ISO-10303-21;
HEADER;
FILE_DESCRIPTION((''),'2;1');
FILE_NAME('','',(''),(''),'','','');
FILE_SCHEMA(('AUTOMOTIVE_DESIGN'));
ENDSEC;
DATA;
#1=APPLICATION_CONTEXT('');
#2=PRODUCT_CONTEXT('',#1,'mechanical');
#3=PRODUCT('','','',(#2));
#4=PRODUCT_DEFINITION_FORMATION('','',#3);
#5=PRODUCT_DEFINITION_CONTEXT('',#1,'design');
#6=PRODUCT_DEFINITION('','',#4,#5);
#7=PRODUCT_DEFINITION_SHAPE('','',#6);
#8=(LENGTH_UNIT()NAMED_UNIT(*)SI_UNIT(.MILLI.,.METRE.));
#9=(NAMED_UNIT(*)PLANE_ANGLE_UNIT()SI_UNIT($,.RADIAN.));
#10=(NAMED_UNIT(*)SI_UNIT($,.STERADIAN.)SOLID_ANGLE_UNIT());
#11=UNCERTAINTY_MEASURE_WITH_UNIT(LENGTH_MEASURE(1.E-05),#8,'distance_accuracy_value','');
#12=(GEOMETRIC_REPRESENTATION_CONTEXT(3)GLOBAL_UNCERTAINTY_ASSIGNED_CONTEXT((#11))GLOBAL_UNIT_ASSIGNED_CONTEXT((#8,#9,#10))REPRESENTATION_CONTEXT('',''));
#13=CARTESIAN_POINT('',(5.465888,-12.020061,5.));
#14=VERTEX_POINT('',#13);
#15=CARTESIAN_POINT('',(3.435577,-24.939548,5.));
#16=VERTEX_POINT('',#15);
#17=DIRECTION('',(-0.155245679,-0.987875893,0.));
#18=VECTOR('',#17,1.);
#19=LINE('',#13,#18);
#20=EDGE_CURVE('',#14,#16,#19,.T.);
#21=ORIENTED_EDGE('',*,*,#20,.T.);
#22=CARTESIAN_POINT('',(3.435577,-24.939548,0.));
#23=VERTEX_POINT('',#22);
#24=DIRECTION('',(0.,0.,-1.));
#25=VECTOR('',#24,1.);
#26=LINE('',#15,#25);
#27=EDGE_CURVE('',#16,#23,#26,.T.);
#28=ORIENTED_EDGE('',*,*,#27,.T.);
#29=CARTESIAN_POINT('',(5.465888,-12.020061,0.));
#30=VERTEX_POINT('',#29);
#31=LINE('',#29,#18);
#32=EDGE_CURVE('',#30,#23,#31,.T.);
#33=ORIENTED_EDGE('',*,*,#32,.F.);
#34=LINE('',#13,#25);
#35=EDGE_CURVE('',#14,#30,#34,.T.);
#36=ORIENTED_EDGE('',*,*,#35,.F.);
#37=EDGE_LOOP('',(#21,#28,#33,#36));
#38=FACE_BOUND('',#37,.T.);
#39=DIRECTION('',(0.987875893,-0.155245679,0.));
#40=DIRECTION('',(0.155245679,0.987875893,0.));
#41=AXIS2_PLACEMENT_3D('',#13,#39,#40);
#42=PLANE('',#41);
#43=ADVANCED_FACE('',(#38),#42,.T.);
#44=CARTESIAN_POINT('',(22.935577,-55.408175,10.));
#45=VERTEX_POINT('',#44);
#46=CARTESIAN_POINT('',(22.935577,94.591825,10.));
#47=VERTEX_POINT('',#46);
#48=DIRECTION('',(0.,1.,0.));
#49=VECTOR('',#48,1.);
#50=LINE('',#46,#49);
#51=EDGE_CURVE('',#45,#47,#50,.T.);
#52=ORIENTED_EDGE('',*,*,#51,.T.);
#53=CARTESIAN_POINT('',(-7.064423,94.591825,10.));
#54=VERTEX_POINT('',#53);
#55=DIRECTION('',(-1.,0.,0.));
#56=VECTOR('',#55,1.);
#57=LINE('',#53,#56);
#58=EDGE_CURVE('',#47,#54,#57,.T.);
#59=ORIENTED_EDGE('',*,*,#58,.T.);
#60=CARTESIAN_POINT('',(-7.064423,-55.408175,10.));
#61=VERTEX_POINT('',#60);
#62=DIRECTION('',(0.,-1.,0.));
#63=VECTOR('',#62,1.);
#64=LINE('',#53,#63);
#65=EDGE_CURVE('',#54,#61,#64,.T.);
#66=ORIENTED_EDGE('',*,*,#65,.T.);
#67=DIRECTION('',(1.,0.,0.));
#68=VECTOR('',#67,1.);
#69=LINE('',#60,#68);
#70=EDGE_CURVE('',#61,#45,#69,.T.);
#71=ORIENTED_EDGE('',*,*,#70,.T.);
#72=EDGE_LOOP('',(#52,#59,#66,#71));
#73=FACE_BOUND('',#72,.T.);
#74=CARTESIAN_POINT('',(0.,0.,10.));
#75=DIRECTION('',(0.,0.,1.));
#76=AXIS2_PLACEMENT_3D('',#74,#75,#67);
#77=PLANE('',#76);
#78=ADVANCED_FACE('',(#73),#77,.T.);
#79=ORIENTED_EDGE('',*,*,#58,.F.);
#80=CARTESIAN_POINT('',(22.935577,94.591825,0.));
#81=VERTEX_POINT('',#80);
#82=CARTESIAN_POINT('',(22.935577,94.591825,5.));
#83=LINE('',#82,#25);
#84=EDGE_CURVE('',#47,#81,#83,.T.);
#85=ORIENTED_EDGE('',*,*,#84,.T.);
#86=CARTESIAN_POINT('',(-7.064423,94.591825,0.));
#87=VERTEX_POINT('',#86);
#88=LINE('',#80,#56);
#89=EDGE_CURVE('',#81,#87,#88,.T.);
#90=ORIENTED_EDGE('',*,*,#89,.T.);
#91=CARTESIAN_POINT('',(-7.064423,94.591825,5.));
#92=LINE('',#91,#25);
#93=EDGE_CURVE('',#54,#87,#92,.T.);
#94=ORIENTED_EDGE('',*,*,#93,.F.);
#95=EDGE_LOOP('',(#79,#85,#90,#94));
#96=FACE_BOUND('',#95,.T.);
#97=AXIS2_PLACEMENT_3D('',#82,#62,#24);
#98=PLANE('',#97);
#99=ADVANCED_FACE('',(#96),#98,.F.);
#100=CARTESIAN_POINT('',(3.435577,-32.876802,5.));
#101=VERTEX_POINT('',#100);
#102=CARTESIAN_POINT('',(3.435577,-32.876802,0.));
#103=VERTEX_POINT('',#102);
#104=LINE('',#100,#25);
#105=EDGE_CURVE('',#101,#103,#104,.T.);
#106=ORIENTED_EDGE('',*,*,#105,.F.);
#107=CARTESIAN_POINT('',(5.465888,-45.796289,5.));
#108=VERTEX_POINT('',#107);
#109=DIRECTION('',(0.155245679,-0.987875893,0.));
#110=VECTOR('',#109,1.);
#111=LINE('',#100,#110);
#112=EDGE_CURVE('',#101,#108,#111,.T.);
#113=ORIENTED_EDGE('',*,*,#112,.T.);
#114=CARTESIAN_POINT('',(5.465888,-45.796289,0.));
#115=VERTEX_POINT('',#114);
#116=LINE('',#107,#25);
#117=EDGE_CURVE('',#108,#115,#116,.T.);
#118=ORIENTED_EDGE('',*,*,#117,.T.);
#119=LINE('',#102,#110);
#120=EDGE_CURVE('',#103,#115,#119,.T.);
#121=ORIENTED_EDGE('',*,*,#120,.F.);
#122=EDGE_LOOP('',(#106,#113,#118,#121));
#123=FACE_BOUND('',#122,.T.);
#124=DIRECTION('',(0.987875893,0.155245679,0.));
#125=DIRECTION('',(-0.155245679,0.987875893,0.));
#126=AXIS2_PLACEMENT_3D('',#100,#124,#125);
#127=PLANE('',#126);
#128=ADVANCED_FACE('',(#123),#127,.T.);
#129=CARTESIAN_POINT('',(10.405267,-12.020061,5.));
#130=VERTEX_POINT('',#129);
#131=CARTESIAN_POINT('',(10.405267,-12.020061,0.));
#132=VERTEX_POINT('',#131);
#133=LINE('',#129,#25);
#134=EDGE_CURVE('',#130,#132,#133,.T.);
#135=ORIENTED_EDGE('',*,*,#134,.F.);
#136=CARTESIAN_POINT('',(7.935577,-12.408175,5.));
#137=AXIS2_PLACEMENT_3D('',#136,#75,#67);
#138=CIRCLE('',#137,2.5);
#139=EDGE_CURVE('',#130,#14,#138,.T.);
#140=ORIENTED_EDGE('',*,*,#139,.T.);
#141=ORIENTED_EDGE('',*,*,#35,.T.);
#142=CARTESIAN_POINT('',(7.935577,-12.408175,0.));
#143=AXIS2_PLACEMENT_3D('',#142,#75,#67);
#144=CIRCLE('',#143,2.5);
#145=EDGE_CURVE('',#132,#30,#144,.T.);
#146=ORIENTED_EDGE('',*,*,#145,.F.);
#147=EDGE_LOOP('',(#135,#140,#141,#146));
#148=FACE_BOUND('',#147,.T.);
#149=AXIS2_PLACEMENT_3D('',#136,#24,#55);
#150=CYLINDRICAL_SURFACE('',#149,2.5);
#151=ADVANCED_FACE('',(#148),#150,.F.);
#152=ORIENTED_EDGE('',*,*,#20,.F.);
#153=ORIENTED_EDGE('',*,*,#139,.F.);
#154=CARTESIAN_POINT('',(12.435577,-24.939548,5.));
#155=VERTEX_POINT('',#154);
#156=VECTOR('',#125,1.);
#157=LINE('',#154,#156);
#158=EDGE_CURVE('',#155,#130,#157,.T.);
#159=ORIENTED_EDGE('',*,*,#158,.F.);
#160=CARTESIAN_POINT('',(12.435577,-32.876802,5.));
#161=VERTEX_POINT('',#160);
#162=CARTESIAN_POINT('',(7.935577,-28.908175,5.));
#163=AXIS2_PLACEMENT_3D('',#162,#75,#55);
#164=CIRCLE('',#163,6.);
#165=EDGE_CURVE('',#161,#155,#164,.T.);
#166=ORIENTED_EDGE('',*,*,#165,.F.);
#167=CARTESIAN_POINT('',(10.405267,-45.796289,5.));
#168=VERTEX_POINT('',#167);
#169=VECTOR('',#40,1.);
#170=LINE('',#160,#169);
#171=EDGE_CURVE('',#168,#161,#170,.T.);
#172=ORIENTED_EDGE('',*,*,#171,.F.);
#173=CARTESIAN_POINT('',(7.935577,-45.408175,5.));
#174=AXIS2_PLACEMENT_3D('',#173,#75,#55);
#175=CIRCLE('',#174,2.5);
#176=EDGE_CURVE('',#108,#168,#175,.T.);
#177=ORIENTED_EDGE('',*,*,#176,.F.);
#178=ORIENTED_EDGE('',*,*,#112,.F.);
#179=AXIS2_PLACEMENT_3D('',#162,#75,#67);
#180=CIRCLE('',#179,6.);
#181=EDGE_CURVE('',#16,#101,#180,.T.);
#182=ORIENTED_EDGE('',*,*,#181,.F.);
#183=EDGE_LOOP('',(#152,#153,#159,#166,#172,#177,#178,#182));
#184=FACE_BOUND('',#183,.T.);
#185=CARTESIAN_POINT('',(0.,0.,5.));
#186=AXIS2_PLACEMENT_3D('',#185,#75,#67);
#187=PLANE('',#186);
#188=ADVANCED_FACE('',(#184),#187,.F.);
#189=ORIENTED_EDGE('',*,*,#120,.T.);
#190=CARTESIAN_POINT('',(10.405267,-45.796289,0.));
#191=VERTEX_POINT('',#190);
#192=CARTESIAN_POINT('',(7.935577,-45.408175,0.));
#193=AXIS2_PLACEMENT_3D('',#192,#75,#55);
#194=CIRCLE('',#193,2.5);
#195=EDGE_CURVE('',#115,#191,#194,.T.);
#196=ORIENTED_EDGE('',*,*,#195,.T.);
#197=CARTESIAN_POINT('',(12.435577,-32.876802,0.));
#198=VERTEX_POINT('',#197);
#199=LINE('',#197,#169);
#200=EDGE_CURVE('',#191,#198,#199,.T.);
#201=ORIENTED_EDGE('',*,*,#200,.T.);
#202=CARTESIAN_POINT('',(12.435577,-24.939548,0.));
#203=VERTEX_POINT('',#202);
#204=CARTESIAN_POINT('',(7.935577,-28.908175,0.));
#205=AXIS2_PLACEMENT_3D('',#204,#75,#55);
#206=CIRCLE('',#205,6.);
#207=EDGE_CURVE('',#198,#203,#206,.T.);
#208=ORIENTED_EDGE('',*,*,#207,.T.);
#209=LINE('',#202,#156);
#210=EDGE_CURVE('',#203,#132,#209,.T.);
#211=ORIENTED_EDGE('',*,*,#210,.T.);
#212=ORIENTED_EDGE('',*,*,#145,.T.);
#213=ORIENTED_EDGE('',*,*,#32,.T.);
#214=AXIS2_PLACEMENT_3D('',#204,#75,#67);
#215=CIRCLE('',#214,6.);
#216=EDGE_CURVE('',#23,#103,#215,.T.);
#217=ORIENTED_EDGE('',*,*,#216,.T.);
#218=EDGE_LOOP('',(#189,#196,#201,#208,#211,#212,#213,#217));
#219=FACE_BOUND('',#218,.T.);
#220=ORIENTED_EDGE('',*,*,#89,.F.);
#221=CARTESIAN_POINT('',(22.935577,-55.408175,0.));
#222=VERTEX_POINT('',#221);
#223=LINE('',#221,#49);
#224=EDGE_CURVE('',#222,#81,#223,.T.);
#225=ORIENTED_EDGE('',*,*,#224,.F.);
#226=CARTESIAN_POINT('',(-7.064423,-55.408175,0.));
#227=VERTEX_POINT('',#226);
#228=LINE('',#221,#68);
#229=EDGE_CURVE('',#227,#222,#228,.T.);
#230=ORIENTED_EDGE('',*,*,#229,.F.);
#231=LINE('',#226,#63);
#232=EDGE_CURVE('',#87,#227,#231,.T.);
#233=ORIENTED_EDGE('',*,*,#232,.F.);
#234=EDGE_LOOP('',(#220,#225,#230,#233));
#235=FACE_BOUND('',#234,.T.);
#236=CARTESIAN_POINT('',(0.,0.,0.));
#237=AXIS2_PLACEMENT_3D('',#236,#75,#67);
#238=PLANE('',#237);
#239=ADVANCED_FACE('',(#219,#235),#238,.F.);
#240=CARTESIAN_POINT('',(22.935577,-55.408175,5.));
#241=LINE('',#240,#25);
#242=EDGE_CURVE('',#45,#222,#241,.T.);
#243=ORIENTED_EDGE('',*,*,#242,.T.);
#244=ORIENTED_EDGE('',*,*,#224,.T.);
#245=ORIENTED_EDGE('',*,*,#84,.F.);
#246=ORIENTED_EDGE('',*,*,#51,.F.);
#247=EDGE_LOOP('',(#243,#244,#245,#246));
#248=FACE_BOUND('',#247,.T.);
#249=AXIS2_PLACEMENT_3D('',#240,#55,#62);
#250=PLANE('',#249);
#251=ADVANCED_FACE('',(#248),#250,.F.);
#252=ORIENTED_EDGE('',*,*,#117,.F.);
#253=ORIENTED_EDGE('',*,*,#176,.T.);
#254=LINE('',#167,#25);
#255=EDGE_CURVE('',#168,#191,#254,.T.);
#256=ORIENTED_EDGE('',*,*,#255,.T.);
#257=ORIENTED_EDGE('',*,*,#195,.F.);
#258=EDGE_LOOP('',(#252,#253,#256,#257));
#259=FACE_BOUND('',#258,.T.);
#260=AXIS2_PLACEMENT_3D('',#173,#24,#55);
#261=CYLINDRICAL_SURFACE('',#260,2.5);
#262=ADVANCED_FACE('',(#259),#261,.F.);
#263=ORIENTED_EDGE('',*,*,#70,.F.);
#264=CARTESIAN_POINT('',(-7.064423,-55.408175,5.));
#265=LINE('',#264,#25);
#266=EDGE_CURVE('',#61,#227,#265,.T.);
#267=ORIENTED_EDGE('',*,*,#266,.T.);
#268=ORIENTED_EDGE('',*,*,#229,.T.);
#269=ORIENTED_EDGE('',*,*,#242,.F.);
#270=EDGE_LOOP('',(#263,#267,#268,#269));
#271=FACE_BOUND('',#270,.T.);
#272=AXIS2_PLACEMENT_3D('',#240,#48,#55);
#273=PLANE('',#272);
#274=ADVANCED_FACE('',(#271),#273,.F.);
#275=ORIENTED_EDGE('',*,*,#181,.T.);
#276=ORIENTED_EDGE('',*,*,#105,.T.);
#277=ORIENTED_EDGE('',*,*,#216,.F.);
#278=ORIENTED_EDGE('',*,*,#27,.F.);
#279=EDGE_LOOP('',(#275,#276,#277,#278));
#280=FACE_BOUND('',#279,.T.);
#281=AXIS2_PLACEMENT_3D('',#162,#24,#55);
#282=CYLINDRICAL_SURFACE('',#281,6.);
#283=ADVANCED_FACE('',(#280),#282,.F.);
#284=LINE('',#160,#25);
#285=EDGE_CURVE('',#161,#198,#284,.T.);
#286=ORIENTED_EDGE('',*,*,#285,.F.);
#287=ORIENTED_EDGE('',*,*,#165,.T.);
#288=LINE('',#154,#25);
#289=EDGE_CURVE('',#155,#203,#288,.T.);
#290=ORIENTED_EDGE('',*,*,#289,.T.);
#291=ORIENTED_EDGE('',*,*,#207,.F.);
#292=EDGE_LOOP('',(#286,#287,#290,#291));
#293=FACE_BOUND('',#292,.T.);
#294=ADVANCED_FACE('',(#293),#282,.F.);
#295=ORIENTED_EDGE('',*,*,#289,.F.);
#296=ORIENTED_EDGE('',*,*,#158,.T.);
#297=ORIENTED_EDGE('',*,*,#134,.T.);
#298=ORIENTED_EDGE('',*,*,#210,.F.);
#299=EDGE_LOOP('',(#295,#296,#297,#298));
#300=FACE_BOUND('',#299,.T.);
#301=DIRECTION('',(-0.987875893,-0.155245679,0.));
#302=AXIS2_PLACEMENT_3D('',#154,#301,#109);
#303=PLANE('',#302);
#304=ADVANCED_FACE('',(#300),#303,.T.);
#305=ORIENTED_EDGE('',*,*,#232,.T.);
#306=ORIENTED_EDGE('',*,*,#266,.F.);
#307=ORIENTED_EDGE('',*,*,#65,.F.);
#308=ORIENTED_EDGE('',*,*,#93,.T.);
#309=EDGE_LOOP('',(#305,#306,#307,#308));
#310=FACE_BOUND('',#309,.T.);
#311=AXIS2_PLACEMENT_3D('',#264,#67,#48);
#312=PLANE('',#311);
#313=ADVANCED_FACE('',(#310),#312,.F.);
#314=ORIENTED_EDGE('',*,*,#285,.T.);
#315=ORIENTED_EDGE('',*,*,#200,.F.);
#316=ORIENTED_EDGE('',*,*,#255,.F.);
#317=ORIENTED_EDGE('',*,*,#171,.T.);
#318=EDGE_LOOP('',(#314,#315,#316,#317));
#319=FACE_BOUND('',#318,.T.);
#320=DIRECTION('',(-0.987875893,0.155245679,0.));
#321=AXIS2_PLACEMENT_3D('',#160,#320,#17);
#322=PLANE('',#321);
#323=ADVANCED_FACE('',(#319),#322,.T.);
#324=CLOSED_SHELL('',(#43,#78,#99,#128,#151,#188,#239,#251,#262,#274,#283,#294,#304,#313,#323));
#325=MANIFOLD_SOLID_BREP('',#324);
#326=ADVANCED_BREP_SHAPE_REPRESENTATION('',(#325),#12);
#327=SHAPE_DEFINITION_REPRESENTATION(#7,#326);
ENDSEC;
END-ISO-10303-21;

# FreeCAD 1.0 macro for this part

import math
import FreeCAD as App
import Part
import Sketcher
Q = App.Units.Quantity


def add_polygon(sketch, points):
    """Adds a closed chain of lines whose ends are joined by coincident constraints."""
    first, n = sketch.GeometryCount, len(points)
    for a, b in zip(points, points[1:] + points[:1]):
        sketch.addGeometry(Part.LineSegment(App.Vector(*a, 0), App.Vector(*b, 0)), False)
    for i in range(n):
        sketch.addConstraint(Sketcher.Constraint("Coincident", first + i, 2, first + (i + 1) % n, 1))

doc = App.newDocument("Part")
body = doc.addObject("PartDesign::Body", "Body")

# Sketch on XY plane
sketch1 = doc.addObject("Sketcher::SketchObject", "Sketch")
body.addObject(sketch1)
sketch1.AttachmentSupport = (doc.XY_Plane, [""])
sketch1.MapMode = "FlatFace"
add_polygon(sketch1, [(-7.064423, 94.591825), (-7.064423, -55.408175), (22.935577, -55.408175), (22.935577, 94.591825)])  # lines 0-3
sketch1.addGeometry(Part.ArcOfCircle(Part.Circle(App.Vector(7.935577, -28.908175, 0), App.Vector(0, 0, 1), 6), math.radians(-41.409622), math.radians(41.409622)), False)  # 4
sketch1.addGeometry(Part.LineSegment(App.Vector(12.435577, -32.876802, 0), App.Vector(10.405267, -45.796289, 0)), False)  # 5
sketch1.addGeometry(Part.ArcOfCircle(Part.Circle(App.Vector(7.935577, -45.408175, 0), App.Vector(0, 0, 1), 2.5), math.radians(-171.068955), math.radians(-8.931045)), False)  # 6
sketch1.addGeometry(Part.LineSegment(App.Vector(5.465888, -45.796289, 0), App.Vector(3.435577, -32.876802, 0)), False)  # 7
sketch1.addGeometry(Part.ArcOfCircle(Part.Circle(App.Vector(7.935577, -28.908175, 0), App.Vector(0, 0, 1), 6), math.radians(138.590378), math.radians(221.409622)), False)  # 8
sketch1.addGeometry(Part.LineSegment(App.Vector(3.435577, -24.939548, 0), App.Vector(5.465888, -12.020061, 0)), False)  # 9
sketch1.addGeometry(Part.ArcOfCircle(Part.Circle(App.Vector(7.935577, -12.408175, 0), App.Vector(0, 0, 1), 2.5), math.radians(8.931045), math.radians(171.068955)), False)  # 10
sketch1.addGeometry(Part.LineSegment(App.Vector(10.405267, -12.020061, 0), App.Vector(12.435577, -24.939548, 0)), False)  # 11
sketch1.addConstraint([
    Sketcher.Constraint("Coincident", 4, 1, 5, 1),
    Sketcher.Constraint("Tangent", 5, 2, 6, 2),
    Sketcher.Constraint("Tangent", 6, 1, 7, 1),
    Sketcher.Constraint("Coincident", 7, 2, 8, 2),
    Sketcher.Constraint("Coincident", 8, 1, 9, 1),
    Sketcher.Constraint("Tangent", 9, 2, 10, 2),
    Sketcher.Constraint("Tangent", 10, 1, 11, 1),
    Sketcher.Constraint("Coincident", 11, 2, 4, 2),
    Sketcher.Constraint("Vertical", 0),
    Sketcher.Constraint("Horizontal", 1),
    Sketcher.Constraint("Vertical", 2),
    Sketcher.Constraint("Horizontal", 3),
    Sketcher.Constraint("Coincident", 8, 3, 4, 3),
    Sketcher.Constraint("Equal", 4, 8),
    Sketcher.Constraint("Equal", 6, 10),
    Sketcher.Constraint("Parallel", 5, 9),
    Sketcher.Constraint("Parallel", 7, 11),
    Sketcher.Constraint("Horizontal", 5, 2, 6, 1),
    Sketcher.Constraint("Horizontal", 4, 1, 7, 2),
    Sketcher.Constraint("Horizontal", 8, 1, 11, 2),
    Sketcher.Constraint("Vertical", 7, 2, 8, 1),
    Sketcher.Constraint("Radius", 4, Q("6 mm")),
    Sketcher.Constraint("Radius", 6, Q("2.5 mm")),
    Sketcher.Constraint("DistanceX", 1, 1, 1, 2, Q("30 mm")),
    Sketcher.Constraint("DistanceY", 0, 2, 0, 1, Q("150 mm")),
    Sketcher.Constraint("DistanceY", 6, 3, 10, 3, Q("33 mm")),
    Sketcher.Constraint("DistanceX", 0, 2, 6, 3, Q("15 mm")),
    Sketcher.Constraint("DistanceY", 0, 2, 6, 3, Q("10 mm")),
    Sketcher.Constraint("DistanceX", 7, 2, 4, 1, Q("9 mm")),
    Sketcher.Constraint("DistanceY", 5, 2, -1, 1, Q("45.796289 mm")),
    Sketcher.Constraint("DistanceX", -1, 1, 4, 3, Q("7.935577 mm")),
])
pad1 = doc.addObject("PartDesign::Pad", "Pad")
body.addObject(pad1)
pad1.Profile = sketch1
pad1.Length = 5

# Sketch on XY plane
sketch2 = doc.addObject("Sketcher::SketchObject", "Sketch001")
body.addObject(sketch2)
sketch2.AttachmentSupport = (doc.XY_Plane, [""])
sketch2.MapMode = "FlatFace"
sketch2.AttachmentOffset = App.Placement(App.Vector(0, 0, 5), App.Rotation())
add_polygon(sketch2, [(-7.064423, 94.591825), (-7.064423, -55.408175), (22.935577, -55.408175), (22.935577, 94.591825)])  # lines 0-3
sketch2.addConstraint([
    Sketcher.Constraint("Vertical", 0),
    Sketcher.Constraint("Horizontal", 1),
    Sketcher.Constraint("Vertical", 2),
    Sketcher.Constraint("Horizontal", 3),
    Sketcher.Constraint("DistanceX", 1, 1, 1, 2, Q("30 mm")),
    Sketcher.Constraint("DistanceY", 0, 2, 0, 1, Q("150 mm")),
    Sketcher.Constraint("DistanceX", 0, 2, -1, 1, Q("7.064423 mm")),
    Sketcher.Constraint("DistanceY", 0, 2, -1, 1, Q("55.408175 mm")),
])
pad2 = doc.addObject("PartDesign::Pad", "Pad001")
body.addObject(pad2)
pad2.Profile = sketch2
pad2.Length = 5

doc.recompute()
